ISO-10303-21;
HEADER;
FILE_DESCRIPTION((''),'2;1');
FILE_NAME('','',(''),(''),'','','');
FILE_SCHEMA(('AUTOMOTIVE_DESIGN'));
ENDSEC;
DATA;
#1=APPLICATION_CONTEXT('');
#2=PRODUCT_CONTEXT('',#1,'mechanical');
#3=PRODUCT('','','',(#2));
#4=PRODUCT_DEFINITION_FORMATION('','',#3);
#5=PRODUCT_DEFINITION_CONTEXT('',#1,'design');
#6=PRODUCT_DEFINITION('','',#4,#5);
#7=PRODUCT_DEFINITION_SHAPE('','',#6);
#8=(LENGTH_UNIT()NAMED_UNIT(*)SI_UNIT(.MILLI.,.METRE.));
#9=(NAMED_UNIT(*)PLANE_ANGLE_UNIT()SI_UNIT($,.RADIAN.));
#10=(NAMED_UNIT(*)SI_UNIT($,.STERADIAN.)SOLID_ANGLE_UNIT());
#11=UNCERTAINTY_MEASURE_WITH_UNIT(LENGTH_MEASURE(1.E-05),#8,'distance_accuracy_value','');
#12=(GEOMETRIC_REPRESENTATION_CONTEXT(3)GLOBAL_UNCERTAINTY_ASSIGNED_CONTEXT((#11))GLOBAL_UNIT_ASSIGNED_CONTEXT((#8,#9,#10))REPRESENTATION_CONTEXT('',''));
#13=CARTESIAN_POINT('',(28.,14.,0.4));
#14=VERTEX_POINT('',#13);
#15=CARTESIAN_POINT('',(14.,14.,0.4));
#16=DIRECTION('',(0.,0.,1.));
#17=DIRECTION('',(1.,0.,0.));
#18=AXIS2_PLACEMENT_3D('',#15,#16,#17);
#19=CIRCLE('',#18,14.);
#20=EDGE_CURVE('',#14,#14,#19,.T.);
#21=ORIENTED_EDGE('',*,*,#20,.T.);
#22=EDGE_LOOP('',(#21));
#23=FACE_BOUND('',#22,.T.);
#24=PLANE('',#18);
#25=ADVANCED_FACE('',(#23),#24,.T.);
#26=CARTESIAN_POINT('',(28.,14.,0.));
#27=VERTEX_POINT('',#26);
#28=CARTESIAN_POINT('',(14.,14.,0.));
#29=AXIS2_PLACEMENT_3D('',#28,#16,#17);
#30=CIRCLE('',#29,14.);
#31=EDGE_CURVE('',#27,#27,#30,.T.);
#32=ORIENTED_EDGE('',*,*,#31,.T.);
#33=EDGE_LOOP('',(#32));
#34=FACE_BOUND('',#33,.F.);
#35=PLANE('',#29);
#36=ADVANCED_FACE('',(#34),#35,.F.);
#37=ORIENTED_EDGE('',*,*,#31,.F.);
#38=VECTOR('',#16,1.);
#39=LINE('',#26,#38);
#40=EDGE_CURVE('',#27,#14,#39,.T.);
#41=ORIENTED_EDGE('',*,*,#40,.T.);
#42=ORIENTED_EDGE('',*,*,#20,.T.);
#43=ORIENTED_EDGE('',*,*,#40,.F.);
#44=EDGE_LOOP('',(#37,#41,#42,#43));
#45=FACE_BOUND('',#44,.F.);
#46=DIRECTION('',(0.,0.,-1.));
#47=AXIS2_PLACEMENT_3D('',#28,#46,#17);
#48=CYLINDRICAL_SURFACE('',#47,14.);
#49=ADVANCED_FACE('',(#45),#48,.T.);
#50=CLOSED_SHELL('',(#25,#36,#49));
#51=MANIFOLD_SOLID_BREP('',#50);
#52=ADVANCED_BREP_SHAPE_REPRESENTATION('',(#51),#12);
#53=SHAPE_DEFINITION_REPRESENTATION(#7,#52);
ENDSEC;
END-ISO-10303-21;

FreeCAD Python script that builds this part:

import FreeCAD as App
import Part
import Sketcher

V = App.Vector

doc = App.newDocument("Part")
body = doc.addObject("PartDesign::Body", "Body")

# Sketch on XY plane
sketch1 = body.newObject("Sketcher::SketchObject", "Sketch")
sketch1.AttachmentSupport = (doc.getObject("XY_Plane"), [""])
sketch1.MapMode = "FlatFace"
sketch1.addGeometry(Part.Circle(V(14, 14, 0), V(0, 0, 1), 14), False)
sketch1.addConstraint(Sketcher.Constraint("Diameter", 0, 28.0))
sketch1.addConstraint(Sketcher.Constraint("DistanceX", -1, 1, 0, 3, 14.0))
sketch1.addConstraint(Sketcher.Constraint("DistanceY", -1, 1, 0, 3, 14.0))
pad1 = body.newObject("PartDesign::Pad", "Pad")
pad1.Profile = sketch1
pad1.Length = 0.4

doc.recompute()
